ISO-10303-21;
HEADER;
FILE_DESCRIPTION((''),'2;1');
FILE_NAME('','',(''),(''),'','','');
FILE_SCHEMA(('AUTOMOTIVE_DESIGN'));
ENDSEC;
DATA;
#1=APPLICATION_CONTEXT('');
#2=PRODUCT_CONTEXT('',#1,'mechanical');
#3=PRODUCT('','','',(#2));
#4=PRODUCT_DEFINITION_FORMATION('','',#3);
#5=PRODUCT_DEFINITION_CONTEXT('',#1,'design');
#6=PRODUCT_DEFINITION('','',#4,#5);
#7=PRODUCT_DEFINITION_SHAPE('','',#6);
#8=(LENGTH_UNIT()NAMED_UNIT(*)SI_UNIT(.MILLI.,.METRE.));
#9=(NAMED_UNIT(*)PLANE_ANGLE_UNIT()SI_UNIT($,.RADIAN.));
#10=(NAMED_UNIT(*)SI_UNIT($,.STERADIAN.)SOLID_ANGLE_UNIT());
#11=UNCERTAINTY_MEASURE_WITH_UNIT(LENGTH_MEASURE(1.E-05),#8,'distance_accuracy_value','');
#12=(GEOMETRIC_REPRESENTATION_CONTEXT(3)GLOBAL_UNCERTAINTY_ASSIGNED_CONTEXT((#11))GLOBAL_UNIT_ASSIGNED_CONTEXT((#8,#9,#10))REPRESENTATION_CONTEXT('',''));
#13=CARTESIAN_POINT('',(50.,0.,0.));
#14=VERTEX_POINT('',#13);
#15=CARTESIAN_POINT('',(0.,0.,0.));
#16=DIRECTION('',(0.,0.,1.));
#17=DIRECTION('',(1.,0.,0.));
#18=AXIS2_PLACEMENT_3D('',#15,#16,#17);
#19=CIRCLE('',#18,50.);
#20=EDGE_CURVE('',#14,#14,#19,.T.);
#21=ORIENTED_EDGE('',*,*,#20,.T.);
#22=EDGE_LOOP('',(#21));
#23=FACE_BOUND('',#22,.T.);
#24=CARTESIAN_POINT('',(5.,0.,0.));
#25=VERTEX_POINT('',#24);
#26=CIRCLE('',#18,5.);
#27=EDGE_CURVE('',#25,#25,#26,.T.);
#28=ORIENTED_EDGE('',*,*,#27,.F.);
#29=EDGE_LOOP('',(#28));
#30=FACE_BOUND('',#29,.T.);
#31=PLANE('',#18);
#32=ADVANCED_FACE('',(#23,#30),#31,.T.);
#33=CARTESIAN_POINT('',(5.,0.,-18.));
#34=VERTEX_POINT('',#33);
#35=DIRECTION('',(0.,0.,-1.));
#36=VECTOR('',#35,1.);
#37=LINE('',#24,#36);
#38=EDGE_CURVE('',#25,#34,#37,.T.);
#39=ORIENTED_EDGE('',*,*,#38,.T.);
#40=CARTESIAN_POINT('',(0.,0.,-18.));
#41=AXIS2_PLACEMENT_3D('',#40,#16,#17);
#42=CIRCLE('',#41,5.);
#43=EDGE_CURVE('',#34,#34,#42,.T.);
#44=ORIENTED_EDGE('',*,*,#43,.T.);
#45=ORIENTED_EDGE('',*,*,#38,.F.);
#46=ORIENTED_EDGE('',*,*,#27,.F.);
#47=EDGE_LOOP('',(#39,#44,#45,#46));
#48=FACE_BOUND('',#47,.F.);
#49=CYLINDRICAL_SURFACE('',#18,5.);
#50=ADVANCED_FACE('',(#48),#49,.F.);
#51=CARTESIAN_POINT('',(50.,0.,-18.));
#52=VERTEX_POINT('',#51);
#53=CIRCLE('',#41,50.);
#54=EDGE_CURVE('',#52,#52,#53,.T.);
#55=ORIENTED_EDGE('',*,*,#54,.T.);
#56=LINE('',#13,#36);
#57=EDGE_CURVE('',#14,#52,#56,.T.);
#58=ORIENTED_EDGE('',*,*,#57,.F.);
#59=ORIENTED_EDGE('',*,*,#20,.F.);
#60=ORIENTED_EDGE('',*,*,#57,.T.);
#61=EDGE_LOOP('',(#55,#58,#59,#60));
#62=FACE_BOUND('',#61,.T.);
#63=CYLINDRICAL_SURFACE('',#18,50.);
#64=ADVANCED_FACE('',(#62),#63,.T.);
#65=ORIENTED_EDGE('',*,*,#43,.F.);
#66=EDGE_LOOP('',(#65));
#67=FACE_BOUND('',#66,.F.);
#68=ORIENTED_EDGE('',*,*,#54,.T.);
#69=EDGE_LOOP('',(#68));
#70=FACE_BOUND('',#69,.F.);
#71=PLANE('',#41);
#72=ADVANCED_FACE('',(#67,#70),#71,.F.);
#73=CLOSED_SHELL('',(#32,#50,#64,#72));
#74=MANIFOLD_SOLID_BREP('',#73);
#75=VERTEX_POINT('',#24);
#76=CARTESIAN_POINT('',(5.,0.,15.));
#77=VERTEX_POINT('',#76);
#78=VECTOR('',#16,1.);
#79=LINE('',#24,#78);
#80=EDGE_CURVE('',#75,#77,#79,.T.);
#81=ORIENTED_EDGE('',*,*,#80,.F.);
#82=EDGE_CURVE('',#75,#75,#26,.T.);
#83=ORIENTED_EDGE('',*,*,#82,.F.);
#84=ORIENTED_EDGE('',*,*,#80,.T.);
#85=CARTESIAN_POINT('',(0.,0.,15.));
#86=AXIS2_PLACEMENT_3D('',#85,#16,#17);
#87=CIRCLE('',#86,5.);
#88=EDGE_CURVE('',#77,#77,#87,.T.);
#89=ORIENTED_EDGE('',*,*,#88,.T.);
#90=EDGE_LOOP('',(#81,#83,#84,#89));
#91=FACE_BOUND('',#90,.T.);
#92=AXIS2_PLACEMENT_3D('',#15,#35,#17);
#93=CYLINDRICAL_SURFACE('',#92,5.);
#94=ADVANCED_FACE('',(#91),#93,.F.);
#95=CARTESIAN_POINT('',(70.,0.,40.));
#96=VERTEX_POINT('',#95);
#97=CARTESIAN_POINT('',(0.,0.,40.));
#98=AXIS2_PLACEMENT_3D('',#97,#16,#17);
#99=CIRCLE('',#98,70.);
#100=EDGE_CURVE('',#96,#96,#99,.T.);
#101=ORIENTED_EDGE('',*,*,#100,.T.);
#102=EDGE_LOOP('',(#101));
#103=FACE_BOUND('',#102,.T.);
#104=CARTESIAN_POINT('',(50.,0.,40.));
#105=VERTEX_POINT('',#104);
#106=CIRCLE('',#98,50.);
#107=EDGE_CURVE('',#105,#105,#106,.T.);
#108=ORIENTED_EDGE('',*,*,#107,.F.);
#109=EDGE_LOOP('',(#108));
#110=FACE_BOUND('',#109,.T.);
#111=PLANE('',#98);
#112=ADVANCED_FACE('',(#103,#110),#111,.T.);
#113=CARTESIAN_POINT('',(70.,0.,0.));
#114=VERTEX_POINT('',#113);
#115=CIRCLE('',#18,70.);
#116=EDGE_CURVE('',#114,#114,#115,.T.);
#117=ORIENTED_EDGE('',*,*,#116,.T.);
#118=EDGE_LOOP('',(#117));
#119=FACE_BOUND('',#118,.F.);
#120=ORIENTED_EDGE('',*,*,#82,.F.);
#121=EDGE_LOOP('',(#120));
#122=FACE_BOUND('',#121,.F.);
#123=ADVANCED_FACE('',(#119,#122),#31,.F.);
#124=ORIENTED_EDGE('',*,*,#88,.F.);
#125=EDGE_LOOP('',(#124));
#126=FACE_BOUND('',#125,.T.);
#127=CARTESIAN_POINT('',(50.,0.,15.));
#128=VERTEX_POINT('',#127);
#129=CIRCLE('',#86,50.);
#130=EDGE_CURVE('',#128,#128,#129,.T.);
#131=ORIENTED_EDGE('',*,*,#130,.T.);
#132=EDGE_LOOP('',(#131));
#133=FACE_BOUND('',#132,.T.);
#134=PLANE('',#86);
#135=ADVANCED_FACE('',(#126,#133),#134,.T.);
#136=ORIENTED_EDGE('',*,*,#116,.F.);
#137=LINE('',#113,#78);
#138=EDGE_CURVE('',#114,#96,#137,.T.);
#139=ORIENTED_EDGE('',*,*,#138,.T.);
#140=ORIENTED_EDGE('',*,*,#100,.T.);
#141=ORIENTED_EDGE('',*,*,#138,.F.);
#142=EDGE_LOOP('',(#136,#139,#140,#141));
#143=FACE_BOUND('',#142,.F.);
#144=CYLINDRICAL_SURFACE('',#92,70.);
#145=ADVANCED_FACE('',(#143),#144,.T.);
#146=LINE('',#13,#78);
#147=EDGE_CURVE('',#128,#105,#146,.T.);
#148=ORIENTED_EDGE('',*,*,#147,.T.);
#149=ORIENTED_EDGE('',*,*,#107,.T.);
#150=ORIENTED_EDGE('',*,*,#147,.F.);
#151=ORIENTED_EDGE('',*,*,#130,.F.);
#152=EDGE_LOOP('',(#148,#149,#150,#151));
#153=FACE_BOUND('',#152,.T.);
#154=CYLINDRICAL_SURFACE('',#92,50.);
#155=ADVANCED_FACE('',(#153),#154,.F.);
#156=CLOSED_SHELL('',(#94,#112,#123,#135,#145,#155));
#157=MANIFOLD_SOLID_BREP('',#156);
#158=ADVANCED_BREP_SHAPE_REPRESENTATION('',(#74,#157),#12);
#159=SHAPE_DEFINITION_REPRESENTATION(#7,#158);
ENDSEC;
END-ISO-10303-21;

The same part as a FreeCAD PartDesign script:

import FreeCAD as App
import Part
import Sketcher

doc = App.newDocument("Part")
params = doc.addObject("Spreadsheet::Sheet", "Params")
for row, (alias, value) in enumerate([
    ("sketch1_diameter", "140 mm"),
    ("sketch1_diameter2", "100 mm"),
    ("pad1_length", "40 mm"),
    ("sketch2_diameter", "100 mm"),
    ("sketch2_diameter2", "10 mm"),
    ("pad2_length", "15 mm"),
    ("sketch3_diameter", "100 mm"),
    ("sketch3_diameter2", "10 mm"),
    ("pad3_length", "18 mm"),
], start=1):
    params.set(f"A{row}", alias)
    params.set(f"B{row}", "=" + value)
    params.setAlias(f"B{row}", alias)

body = doc.addObject("PartDesign::Body", "Body")

# Sketch on XY plane
sketch1 = body.newObject("Sketcher::SketchObject", "Sketch")
sketch1.AttachmentSupport = (doc.getObject("XY_Plane"), [""])
sketch1.MapMode = "FlatFace"
sketch1.addGeometry(Part.Circle(App.Vector(0, 0, 0), App.Vector(0, 0, 1), 70), False)
sketch1.addGeometry(Part.Circle(App.Vector(0, 0, 0), App.Vector(0, 0, 1), 50), False)
sketch1.addConstraint(Sketcher.Constraint("Coincident", 0, 3, -1, 1))
sketch1.addConstraint(Sketcher.Constraint("Coincident", 1, 3, -1, 1))
sketch1.addConstraint(Sketcher.Constraint("Diameter", 0, 140.0))
sketch1.addConstraint(Sketcher.Constraint("Diameter", 1, 100.0))
sketch1.setExpression("Constraints[2]", "Params.sketch1_diameter")
sketch1.setExpression("Constraints[3]", "Params.sketch1_diameter2")
pad1 = body.newObject("PartDesign::Pad", "Pad")
pad1.Profile = sketch1
pad1.setExpression("Length", "Params.pad1_length")

# Sketch on XY plane
sketch2 = body.newObject("Sketcher::SketchObject", "Sketch001")
sketch2.AttachmentSupport = (doc.getObject("XY_Plane"), [""])
sketch2.MapMode = "FlatFace"
sketch2.addGeometry(Part.Circle(App.Vector(0, 0, 0), App.Vector(0, 0, 1), 50), False)
sketch2.addGeometry(Part.Circle(App.Vector(0, 0, 0), App.Vector(0, 0, 1), 5), False)
sketch2.addConstraint(Sketcher.Constraint("Coincident", 0, 3, -1, 1))
sketch2.addConstraint(Sketcher.Constraint("Coincident", 1, 3, -1, 1))
sketch2.addConstraint(Sketcher.Constraint("Diameter", 0, 100.0))
sketch2.addConstraint(Sketcher.Constraint("Diameter", 1, 10.0))
sketch2.setExpression("Constraints[2]", "Params.sketch2_diameter")
sketch2.setExpression("Constraints[3]", "Params.sketch2_diameter2")
pad2 = body.newObject("PartDesign::Pad", "Pad001")
pad2.Profile = sketch2
pad2.setExpression("Length", "Params.pad2_length")
body2 = doc.addObject("PartDesign::Body", "Body001")

# Sketch on XY plane
sketch3 = body2.newObject("Sketcher::SketchObject", "Sketch002")
sketch3.AttachmentSupport = (doc.getObject("XY_Plane001"), [""])
sketch3.MapMode = "FlatFace"
sketch3.addGeometry(Part.Circle(App.Vector(0, 0, 0), App.Vector(0, 0, 1), 50), False)
sketch3.addGeometry(Part.Circle(App.Vector(0, 0, 0), App.Vector(0, 0, 1), 5), False)
sketch3.addConstraint(Sketcher.Constraint("Coincident", 0, 3, -1, 1))
sketch3.addConstraint(Sketcher.Constraint("Coincident", 1, 3, -1, 1))
sketch3.addConstraint(Sketcher.Constraint("Diameter", 0, 100.0))
sketch3.addConstraint(Sketcher.Constraint("Diameter", 1, 10.0))
sketch3.setExpression("Constraints[2]", "Params.sketch3_diameter")
sketch3.setExpression("Constraints[3]", "Params.sketch3_diameter2")
pad3 = body2.newObject("PartDesign::Pad", "Pad002")
pad3.Profile = sketch3
pad3.setExpression("Length", "Params.pad3_length")
pad3.Reversed = True

doc.recompute()
